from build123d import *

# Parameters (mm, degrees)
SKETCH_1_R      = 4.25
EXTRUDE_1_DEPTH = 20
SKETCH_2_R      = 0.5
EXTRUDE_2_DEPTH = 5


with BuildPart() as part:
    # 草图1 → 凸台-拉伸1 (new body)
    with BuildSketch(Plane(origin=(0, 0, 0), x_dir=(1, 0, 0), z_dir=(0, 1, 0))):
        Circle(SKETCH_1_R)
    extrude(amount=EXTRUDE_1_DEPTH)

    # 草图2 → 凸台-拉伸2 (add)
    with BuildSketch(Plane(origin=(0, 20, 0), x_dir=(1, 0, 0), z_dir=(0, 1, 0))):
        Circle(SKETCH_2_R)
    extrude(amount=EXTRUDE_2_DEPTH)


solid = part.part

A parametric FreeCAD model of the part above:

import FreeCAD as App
import Part
import Sketcher
from FreeCAD import Vector

doc = App.newDocument("Part")
body = doc.addObject("PartDesign::Body", "Body")

sketch1 = body.newObject("Sketcher::SketchObject", "Sketch")
sketch1.AttachmentSupport = (doc.getObject("XZ_Plane"), [""])
sketch1.MapMode = "FlatFace"
sketch1.addGeometry(Part.Circle(Vector(0, 0, 0), Vector(0, 0, 1), 4.2), False)
sketch1.addConstraint([
    Sketcher.Constraint("Coincident", 0, 3, -1, 1),
    Sketcher.Constraint("Diameter", 0, 8.5),
])
pad1 = body.newObject("PartDesign::Pad", "Pad")
pad1.Profile = sketch1
pad1.Length = 20
pad1.Reversed = True

sketch2 = body.newObject("Sketcher::SketchObject", "Sketch001")
sketch2.AttachmentSupport = (doc.getObject("XZ_Plane"), [""])
sketch2.MapMode = "FlatFace"
sketch2.AttachmentOffset = App.Placement(Vector(0, 0, -20), App.Rotation())
sketch2.addGeometry(Part.Circle(Vector(0, 0, 0), Vector(0, 0, 1), 0.5), False)
sketch2.addConstraint([
    Sketcher.Constraint("Coincident", 0, 3, -1, 1),
    Sketcher.Constraint("Diameter", 0, 1.0),
])
pad2 = body.newObject("PartDesign::Pad", "Pad001")
pad2.Profile = sketch2
pad2.Length = 5
pad2.Reversed = True

doc.recompute()
